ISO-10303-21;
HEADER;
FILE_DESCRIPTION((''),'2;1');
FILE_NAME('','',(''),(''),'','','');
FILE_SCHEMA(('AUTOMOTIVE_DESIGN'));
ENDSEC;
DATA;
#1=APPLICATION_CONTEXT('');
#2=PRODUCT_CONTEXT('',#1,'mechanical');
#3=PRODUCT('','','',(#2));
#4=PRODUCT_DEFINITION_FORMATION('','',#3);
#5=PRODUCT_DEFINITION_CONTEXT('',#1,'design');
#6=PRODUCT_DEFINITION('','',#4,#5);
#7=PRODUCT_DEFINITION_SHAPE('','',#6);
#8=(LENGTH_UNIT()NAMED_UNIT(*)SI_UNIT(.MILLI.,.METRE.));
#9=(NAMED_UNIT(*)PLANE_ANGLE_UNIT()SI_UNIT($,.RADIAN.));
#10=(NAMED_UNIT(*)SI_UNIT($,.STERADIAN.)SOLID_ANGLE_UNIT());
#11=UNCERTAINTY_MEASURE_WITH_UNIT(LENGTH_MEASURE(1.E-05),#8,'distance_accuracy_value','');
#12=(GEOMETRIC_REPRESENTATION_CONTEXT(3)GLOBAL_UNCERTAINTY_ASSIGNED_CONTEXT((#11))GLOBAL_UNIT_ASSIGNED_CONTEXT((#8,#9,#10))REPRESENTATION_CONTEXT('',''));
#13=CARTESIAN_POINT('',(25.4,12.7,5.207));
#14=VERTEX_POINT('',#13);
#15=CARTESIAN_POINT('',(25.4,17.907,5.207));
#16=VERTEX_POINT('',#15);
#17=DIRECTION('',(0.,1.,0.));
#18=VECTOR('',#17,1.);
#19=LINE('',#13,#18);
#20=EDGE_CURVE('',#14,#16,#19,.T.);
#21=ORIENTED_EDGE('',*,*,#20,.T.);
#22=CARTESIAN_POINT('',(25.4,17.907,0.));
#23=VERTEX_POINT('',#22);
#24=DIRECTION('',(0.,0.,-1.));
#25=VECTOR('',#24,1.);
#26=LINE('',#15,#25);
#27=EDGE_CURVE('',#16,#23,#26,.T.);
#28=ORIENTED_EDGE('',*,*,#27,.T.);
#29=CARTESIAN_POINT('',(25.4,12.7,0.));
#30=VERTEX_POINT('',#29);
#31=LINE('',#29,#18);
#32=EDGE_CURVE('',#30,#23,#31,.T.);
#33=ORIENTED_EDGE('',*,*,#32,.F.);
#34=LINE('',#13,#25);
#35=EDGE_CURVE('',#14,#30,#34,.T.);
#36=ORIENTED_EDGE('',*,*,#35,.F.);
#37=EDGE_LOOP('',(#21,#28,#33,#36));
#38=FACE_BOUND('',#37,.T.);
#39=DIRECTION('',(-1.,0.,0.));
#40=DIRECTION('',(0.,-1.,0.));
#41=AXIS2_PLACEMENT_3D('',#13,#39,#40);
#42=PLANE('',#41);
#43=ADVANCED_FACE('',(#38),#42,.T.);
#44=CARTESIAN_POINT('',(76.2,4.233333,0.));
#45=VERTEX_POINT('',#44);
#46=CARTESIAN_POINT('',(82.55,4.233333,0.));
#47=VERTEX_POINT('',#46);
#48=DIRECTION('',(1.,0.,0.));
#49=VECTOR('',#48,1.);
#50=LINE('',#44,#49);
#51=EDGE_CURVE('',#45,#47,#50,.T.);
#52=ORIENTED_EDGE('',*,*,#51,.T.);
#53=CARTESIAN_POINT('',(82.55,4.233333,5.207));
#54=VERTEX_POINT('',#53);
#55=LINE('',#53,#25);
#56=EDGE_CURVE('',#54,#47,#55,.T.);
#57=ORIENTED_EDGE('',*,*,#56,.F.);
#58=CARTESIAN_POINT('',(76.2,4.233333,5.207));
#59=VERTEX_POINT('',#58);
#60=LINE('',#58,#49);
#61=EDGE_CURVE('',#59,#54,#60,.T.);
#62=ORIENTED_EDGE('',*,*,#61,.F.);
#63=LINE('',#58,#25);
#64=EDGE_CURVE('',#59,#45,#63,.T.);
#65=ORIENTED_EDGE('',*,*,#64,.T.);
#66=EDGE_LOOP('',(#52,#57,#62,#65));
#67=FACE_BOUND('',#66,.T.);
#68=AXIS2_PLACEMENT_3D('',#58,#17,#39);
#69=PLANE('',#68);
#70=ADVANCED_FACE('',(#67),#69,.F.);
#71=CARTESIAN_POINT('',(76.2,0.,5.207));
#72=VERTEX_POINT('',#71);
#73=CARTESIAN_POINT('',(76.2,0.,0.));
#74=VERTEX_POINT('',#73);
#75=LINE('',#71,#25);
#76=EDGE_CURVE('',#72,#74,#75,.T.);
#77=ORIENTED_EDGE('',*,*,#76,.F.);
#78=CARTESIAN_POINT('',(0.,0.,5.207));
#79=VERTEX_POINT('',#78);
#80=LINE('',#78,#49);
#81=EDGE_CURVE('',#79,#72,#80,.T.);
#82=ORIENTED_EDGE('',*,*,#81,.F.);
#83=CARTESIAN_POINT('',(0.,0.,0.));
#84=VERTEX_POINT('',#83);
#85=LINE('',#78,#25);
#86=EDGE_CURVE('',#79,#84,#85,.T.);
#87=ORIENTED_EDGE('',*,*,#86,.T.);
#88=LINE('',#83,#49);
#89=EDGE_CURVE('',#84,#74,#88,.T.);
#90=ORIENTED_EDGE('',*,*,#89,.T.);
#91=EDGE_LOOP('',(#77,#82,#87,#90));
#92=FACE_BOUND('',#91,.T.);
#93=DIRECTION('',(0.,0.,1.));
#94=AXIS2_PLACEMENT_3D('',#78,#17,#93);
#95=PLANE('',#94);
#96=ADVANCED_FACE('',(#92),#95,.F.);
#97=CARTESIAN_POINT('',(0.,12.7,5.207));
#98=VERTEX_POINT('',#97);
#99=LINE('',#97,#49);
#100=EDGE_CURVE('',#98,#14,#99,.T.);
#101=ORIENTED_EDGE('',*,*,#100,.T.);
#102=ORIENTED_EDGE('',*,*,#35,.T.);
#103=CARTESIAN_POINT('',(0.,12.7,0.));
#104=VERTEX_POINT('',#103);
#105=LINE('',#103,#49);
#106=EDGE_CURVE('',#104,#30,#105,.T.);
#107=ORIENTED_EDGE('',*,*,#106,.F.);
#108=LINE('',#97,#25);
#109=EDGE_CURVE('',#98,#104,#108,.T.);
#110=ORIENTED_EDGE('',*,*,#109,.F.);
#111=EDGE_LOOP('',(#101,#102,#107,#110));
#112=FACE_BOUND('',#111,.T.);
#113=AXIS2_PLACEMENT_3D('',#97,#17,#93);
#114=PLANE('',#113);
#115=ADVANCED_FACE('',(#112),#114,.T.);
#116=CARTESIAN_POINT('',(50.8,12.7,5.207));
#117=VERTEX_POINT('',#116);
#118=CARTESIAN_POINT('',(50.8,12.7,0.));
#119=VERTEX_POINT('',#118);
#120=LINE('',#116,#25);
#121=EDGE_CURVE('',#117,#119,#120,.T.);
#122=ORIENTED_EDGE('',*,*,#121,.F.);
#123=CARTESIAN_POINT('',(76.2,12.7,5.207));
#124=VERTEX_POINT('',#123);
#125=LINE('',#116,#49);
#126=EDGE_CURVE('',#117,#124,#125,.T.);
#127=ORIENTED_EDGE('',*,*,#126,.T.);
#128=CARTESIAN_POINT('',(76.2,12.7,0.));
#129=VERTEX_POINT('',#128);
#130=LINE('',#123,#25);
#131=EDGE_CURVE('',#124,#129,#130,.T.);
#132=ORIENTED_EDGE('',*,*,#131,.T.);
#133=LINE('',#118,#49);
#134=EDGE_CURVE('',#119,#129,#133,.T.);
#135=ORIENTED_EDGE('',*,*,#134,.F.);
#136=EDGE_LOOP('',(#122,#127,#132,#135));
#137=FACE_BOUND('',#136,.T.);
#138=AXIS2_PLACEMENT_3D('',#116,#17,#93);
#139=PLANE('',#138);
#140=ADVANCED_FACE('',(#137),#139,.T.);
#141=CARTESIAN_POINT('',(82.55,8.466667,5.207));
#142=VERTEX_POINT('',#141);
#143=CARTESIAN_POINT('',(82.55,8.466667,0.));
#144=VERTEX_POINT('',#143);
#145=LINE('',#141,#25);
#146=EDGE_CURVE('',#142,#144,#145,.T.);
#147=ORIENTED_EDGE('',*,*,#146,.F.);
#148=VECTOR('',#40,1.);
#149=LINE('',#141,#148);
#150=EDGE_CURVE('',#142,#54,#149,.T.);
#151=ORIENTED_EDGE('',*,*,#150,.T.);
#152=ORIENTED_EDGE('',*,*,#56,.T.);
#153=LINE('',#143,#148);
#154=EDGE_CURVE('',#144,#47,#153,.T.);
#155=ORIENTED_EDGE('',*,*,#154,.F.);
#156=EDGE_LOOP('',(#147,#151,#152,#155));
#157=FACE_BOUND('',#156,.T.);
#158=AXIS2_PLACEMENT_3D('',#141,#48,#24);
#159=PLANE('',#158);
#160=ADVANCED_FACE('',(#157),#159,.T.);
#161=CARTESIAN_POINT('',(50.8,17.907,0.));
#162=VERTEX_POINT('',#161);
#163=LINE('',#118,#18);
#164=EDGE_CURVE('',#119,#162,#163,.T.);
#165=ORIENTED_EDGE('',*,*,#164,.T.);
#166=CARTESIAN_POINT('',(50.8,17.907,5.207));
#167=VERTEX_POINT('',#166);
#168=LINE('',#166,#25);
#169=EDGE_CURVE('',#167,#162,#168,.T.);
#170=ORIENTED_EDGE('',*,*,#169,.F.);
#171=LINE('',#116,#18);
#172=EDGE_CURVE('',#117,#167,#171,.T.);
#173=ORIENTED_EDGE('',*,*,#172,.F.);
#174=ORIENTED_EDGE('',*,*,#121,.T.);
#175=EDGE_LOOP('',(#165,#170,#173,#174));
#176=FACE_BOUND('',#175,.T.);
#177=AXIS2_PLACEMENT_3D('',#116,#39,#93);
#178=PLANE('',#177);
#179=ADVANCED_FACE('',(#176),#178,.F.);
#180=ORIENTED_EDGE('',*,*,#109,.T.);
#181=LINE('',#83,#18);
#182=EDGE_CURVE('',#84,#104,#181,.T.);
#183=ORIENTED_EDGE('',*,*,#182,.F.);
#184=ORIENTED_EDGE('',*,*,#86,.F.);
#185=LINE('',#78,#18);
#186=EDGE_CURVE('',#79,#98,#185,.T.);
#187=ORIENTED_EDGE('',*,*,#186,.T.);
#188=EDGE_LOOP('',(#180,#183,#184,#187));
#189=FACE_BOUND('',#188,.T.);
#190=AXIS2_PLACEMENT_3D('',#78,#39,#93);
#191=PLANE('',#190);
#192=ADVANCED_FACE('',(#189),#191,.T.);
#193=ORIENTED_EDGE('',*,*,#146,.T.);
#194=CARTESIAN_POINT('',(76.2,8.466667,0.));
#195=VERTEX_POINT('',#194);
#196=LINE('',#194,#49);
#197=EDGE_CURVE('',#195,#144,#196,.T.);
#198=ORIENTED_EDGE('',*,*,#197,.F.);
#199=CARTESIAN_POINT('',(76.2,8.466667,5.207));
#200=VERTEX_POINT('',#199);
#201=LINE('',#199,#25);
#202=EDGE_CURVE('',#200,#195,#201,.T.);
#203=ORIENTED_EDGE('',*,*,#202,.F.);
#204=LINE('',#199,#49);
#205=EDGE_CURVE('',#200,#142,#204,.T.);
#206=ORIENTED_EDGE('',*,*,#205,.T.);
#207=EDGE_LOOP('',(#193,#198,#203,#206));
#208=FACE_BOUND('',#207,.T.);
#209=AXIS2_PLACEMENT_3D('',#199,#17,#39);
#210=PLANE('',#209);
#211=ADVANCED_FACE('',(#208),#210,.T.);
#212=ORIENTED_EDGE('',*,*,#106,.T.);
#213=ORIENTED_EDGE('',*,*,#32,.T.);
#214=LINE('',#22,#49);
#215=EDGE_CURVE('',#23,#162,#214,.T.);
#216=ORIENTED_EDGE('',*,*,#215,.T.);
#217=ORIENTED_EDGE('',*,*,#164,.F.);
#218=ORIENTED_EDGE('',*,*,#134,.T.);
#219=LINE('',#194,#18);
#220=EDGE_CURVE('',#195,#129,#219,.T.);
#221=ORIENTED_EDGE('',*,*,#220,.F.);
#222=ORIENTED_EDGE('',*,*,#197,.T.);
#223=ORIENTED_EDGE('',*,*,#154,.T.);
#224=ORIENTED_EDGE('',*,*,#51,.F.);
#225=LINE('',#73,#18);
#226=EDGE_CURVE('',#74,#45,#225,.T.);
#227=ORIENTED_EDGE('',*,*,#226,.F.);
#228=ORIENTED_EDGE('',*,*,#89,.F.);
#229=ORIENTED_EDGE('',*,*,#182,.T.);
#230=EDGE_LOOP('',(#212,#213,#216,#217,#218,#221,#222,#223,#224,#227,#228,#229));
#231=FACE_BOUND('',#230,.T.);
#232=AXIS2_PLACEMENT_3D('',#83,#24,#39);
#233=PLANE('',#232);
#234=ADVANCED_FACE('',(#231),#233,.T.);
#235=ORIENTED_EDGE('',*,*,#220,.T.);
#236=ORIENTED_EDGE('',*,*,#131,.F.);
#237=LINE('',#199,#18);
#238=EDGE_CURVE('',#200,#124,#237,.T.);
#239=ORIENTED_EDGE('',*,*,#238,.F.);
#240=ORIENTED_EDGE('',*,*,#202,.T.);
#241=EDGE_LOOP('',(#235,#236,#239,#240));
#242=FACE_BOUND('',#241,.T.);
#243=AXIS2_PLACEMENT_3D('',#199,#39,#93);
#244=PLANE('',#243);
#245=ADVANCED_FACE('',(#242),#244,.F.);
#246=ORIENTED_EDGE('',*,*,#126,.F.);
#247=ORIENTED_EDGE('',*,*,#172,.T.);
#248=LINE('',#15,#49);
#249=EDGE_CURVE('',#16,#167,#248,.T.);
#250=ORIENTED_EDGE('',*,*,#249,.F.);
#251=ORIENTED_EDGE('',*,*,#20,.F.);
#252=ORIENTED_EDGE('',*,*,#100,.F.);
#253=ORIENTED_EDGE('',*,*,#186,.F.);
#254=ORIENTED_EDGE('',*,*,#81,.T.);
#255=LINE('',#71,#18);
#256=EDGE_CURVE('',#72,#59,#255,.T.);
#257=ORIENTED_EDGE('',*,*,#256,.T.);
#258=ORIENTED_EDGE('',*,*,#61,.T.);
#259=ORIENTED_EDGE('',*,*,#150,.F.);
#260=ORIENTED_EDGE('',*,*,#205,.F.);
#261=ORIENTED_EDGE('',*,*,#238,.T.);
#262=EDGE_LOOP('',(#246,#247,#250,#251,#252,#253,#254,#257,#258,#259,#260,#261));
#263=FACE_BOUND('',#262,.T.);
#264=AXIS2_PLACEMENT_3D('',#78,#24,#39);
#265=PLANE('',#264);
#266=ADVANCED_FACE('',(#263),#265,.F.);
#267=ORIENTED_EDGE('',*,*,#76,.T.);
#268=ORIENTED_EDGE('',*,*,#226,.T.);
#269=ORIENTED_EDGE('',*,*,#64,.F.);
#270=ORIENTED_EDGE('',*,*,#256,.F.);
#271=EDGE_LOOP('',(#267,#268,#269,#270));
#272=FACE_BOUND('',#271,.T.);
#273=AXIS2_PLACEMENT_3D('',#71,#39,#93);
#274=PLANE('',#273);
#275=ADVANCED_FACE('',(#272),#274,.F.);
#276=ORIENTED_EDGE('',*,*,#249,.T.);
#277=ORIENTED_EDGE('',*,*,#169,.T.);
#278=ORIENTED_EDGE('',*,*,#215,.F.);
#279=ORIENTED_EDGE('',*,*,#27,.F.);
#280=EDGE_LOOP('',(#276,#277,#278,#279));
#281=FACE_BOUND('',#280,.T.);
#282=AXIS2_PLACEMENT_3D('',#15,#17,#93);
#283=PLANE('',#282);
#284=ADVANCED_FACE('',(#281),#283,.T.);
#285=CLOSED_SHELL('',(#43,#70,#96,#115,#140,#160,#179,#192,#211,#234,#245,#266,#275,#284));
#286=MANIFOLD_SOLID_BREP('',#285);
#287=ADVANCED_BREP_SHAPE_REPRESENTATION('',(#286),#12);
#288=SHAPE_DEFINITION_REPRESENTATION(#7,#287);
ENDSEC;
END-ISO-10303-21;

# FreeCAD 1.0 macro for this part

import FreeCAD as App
import Part
import Sketcher

V = App.Vector
Q = App.Units.Quantity


def add_polygon(sketch, points):
    """Adds a closed chain of lines whose ends are joined by coincident constraints."""
    first, n = sketch.GeometryCount, len(points)
    for a, b in zip(points, points[1:] + points[:1]):
        sketch.addGeometry(Part.LineSegment(App.Vector(*a, 0), App.Vector(*b, 0)), False)
    for i in range(n):
        sketch.addConstraint(Sketcher.Constraint("Coincident", first + i, 2, first + (i + 1) % n, 1))

doc = App.newDocument("Part")
params = doc.addObject("Spreadsheet::Sheet", "Params")
for row, (alias, value) in enumerate([
    ("sketch1_width", "1 in"),
    ("sketch1_height", "0.5 in"),
    ("sketch1_width2", "0.25 in"),
    ("sketch1_height2", "0.205 in"),
    ("pad1_length", "0.205 in"),
], start=1):
    params.set(f"A{row}", alias)
    params.set(f"B{row}", "=" + value)
    params.setAlias(f"B{row}", alias)

body = doc.addObject("PartDesign::Body", "Body")

# Sketch on XY plane
sketch1 = doc.addObject("Sketcher::SketchObject", "Sketch")
body.addObject(sketch1)
sketch1.AttachmentSupport = (doc.XY_Plane, [""])
sketch1.MapMode = "FlatFace"
add_polygon(sketch1, [(76.2, 12.7), (50.8, 12.7), (50.8, 17.9), (25.4, 17.9), (25.4, 12.7), (0, 12.7), (0, 0), (76.2, 0), (76.2, 4.2), (82.5, 4.2), (82.5, 8.5), (76.2, 8.5)])  # lines 0-11
sketch1.addConstraint([
    Sketcher.Constraint("Horizontal", 0),
    Sketcher.Constraint("Vertical", 1),
    Sketcher.Constraint("Horizontal", 2),
    Sketcher.Constraint("Vertical", 3),
    Sketcher.Constraint("Horizontal", 4),
    Sketcher.Constraint("Vertical", 5),
    Sketcher.Constraint("Horizontal", 6),
    Sketcher.Constraint("Vertical", 7),
    Sketcher.Constraint("Horizontal", 8),
    Sketcher.Constraint("Vertical", 9),
    Sketcher.Constraint("Horizontal", 10),
    Sketcher.Constraint("Vertical", 11),
    Sketcher.Constraint("Coincident", 5, 2, -1, 1),
    Sketcher.Constraint("Horizontal", 0, 2, 3, 2),
    Sketcher.Constraint("Vertical", 7, 2, 10, 2),
    Sketcher.Constraint("Equal", 0, 2),
    Sketcher.Constraint("Equal", 2, 4),
    Sketcher.Constraint("Equal", 7, 9),
    Sketcher.Constraint("Equal", 9, 11),
    Sketcher.Constraint("DistanceX", 0, 2, 0, 1, Q("1 in")),
    Sketcher.Constraint("DistanceY", 5, 2, 5, 1, Q("0.5 in")),
    Sketcher.Constraint("DistanceX", 8, 1, 8, 2, Q("0.25 in")),
    Sketcher.Constraint("DistanceY", 1, 1, 1, 2, Q("0.205 in")),
])
sketch1.setExpression("Constraints[31]", "Params.sketch1_width")
sketch1.setExpression("Constraints[32]", "Params.sketch1_height")
sketch1.setExpression("Constraints[33]", "Params.sketch1_width2")
sketch1.setExpression("Constraints[34]", "Params.sketch1_height2")
pad1 = doc.addObject("PartDesign::Pad", "Pad")
body.addObject(pad1)
pad1.Profile = sketch1
pad1.setExpression("Length", "Params.pad1_length")

doc.recompute()
